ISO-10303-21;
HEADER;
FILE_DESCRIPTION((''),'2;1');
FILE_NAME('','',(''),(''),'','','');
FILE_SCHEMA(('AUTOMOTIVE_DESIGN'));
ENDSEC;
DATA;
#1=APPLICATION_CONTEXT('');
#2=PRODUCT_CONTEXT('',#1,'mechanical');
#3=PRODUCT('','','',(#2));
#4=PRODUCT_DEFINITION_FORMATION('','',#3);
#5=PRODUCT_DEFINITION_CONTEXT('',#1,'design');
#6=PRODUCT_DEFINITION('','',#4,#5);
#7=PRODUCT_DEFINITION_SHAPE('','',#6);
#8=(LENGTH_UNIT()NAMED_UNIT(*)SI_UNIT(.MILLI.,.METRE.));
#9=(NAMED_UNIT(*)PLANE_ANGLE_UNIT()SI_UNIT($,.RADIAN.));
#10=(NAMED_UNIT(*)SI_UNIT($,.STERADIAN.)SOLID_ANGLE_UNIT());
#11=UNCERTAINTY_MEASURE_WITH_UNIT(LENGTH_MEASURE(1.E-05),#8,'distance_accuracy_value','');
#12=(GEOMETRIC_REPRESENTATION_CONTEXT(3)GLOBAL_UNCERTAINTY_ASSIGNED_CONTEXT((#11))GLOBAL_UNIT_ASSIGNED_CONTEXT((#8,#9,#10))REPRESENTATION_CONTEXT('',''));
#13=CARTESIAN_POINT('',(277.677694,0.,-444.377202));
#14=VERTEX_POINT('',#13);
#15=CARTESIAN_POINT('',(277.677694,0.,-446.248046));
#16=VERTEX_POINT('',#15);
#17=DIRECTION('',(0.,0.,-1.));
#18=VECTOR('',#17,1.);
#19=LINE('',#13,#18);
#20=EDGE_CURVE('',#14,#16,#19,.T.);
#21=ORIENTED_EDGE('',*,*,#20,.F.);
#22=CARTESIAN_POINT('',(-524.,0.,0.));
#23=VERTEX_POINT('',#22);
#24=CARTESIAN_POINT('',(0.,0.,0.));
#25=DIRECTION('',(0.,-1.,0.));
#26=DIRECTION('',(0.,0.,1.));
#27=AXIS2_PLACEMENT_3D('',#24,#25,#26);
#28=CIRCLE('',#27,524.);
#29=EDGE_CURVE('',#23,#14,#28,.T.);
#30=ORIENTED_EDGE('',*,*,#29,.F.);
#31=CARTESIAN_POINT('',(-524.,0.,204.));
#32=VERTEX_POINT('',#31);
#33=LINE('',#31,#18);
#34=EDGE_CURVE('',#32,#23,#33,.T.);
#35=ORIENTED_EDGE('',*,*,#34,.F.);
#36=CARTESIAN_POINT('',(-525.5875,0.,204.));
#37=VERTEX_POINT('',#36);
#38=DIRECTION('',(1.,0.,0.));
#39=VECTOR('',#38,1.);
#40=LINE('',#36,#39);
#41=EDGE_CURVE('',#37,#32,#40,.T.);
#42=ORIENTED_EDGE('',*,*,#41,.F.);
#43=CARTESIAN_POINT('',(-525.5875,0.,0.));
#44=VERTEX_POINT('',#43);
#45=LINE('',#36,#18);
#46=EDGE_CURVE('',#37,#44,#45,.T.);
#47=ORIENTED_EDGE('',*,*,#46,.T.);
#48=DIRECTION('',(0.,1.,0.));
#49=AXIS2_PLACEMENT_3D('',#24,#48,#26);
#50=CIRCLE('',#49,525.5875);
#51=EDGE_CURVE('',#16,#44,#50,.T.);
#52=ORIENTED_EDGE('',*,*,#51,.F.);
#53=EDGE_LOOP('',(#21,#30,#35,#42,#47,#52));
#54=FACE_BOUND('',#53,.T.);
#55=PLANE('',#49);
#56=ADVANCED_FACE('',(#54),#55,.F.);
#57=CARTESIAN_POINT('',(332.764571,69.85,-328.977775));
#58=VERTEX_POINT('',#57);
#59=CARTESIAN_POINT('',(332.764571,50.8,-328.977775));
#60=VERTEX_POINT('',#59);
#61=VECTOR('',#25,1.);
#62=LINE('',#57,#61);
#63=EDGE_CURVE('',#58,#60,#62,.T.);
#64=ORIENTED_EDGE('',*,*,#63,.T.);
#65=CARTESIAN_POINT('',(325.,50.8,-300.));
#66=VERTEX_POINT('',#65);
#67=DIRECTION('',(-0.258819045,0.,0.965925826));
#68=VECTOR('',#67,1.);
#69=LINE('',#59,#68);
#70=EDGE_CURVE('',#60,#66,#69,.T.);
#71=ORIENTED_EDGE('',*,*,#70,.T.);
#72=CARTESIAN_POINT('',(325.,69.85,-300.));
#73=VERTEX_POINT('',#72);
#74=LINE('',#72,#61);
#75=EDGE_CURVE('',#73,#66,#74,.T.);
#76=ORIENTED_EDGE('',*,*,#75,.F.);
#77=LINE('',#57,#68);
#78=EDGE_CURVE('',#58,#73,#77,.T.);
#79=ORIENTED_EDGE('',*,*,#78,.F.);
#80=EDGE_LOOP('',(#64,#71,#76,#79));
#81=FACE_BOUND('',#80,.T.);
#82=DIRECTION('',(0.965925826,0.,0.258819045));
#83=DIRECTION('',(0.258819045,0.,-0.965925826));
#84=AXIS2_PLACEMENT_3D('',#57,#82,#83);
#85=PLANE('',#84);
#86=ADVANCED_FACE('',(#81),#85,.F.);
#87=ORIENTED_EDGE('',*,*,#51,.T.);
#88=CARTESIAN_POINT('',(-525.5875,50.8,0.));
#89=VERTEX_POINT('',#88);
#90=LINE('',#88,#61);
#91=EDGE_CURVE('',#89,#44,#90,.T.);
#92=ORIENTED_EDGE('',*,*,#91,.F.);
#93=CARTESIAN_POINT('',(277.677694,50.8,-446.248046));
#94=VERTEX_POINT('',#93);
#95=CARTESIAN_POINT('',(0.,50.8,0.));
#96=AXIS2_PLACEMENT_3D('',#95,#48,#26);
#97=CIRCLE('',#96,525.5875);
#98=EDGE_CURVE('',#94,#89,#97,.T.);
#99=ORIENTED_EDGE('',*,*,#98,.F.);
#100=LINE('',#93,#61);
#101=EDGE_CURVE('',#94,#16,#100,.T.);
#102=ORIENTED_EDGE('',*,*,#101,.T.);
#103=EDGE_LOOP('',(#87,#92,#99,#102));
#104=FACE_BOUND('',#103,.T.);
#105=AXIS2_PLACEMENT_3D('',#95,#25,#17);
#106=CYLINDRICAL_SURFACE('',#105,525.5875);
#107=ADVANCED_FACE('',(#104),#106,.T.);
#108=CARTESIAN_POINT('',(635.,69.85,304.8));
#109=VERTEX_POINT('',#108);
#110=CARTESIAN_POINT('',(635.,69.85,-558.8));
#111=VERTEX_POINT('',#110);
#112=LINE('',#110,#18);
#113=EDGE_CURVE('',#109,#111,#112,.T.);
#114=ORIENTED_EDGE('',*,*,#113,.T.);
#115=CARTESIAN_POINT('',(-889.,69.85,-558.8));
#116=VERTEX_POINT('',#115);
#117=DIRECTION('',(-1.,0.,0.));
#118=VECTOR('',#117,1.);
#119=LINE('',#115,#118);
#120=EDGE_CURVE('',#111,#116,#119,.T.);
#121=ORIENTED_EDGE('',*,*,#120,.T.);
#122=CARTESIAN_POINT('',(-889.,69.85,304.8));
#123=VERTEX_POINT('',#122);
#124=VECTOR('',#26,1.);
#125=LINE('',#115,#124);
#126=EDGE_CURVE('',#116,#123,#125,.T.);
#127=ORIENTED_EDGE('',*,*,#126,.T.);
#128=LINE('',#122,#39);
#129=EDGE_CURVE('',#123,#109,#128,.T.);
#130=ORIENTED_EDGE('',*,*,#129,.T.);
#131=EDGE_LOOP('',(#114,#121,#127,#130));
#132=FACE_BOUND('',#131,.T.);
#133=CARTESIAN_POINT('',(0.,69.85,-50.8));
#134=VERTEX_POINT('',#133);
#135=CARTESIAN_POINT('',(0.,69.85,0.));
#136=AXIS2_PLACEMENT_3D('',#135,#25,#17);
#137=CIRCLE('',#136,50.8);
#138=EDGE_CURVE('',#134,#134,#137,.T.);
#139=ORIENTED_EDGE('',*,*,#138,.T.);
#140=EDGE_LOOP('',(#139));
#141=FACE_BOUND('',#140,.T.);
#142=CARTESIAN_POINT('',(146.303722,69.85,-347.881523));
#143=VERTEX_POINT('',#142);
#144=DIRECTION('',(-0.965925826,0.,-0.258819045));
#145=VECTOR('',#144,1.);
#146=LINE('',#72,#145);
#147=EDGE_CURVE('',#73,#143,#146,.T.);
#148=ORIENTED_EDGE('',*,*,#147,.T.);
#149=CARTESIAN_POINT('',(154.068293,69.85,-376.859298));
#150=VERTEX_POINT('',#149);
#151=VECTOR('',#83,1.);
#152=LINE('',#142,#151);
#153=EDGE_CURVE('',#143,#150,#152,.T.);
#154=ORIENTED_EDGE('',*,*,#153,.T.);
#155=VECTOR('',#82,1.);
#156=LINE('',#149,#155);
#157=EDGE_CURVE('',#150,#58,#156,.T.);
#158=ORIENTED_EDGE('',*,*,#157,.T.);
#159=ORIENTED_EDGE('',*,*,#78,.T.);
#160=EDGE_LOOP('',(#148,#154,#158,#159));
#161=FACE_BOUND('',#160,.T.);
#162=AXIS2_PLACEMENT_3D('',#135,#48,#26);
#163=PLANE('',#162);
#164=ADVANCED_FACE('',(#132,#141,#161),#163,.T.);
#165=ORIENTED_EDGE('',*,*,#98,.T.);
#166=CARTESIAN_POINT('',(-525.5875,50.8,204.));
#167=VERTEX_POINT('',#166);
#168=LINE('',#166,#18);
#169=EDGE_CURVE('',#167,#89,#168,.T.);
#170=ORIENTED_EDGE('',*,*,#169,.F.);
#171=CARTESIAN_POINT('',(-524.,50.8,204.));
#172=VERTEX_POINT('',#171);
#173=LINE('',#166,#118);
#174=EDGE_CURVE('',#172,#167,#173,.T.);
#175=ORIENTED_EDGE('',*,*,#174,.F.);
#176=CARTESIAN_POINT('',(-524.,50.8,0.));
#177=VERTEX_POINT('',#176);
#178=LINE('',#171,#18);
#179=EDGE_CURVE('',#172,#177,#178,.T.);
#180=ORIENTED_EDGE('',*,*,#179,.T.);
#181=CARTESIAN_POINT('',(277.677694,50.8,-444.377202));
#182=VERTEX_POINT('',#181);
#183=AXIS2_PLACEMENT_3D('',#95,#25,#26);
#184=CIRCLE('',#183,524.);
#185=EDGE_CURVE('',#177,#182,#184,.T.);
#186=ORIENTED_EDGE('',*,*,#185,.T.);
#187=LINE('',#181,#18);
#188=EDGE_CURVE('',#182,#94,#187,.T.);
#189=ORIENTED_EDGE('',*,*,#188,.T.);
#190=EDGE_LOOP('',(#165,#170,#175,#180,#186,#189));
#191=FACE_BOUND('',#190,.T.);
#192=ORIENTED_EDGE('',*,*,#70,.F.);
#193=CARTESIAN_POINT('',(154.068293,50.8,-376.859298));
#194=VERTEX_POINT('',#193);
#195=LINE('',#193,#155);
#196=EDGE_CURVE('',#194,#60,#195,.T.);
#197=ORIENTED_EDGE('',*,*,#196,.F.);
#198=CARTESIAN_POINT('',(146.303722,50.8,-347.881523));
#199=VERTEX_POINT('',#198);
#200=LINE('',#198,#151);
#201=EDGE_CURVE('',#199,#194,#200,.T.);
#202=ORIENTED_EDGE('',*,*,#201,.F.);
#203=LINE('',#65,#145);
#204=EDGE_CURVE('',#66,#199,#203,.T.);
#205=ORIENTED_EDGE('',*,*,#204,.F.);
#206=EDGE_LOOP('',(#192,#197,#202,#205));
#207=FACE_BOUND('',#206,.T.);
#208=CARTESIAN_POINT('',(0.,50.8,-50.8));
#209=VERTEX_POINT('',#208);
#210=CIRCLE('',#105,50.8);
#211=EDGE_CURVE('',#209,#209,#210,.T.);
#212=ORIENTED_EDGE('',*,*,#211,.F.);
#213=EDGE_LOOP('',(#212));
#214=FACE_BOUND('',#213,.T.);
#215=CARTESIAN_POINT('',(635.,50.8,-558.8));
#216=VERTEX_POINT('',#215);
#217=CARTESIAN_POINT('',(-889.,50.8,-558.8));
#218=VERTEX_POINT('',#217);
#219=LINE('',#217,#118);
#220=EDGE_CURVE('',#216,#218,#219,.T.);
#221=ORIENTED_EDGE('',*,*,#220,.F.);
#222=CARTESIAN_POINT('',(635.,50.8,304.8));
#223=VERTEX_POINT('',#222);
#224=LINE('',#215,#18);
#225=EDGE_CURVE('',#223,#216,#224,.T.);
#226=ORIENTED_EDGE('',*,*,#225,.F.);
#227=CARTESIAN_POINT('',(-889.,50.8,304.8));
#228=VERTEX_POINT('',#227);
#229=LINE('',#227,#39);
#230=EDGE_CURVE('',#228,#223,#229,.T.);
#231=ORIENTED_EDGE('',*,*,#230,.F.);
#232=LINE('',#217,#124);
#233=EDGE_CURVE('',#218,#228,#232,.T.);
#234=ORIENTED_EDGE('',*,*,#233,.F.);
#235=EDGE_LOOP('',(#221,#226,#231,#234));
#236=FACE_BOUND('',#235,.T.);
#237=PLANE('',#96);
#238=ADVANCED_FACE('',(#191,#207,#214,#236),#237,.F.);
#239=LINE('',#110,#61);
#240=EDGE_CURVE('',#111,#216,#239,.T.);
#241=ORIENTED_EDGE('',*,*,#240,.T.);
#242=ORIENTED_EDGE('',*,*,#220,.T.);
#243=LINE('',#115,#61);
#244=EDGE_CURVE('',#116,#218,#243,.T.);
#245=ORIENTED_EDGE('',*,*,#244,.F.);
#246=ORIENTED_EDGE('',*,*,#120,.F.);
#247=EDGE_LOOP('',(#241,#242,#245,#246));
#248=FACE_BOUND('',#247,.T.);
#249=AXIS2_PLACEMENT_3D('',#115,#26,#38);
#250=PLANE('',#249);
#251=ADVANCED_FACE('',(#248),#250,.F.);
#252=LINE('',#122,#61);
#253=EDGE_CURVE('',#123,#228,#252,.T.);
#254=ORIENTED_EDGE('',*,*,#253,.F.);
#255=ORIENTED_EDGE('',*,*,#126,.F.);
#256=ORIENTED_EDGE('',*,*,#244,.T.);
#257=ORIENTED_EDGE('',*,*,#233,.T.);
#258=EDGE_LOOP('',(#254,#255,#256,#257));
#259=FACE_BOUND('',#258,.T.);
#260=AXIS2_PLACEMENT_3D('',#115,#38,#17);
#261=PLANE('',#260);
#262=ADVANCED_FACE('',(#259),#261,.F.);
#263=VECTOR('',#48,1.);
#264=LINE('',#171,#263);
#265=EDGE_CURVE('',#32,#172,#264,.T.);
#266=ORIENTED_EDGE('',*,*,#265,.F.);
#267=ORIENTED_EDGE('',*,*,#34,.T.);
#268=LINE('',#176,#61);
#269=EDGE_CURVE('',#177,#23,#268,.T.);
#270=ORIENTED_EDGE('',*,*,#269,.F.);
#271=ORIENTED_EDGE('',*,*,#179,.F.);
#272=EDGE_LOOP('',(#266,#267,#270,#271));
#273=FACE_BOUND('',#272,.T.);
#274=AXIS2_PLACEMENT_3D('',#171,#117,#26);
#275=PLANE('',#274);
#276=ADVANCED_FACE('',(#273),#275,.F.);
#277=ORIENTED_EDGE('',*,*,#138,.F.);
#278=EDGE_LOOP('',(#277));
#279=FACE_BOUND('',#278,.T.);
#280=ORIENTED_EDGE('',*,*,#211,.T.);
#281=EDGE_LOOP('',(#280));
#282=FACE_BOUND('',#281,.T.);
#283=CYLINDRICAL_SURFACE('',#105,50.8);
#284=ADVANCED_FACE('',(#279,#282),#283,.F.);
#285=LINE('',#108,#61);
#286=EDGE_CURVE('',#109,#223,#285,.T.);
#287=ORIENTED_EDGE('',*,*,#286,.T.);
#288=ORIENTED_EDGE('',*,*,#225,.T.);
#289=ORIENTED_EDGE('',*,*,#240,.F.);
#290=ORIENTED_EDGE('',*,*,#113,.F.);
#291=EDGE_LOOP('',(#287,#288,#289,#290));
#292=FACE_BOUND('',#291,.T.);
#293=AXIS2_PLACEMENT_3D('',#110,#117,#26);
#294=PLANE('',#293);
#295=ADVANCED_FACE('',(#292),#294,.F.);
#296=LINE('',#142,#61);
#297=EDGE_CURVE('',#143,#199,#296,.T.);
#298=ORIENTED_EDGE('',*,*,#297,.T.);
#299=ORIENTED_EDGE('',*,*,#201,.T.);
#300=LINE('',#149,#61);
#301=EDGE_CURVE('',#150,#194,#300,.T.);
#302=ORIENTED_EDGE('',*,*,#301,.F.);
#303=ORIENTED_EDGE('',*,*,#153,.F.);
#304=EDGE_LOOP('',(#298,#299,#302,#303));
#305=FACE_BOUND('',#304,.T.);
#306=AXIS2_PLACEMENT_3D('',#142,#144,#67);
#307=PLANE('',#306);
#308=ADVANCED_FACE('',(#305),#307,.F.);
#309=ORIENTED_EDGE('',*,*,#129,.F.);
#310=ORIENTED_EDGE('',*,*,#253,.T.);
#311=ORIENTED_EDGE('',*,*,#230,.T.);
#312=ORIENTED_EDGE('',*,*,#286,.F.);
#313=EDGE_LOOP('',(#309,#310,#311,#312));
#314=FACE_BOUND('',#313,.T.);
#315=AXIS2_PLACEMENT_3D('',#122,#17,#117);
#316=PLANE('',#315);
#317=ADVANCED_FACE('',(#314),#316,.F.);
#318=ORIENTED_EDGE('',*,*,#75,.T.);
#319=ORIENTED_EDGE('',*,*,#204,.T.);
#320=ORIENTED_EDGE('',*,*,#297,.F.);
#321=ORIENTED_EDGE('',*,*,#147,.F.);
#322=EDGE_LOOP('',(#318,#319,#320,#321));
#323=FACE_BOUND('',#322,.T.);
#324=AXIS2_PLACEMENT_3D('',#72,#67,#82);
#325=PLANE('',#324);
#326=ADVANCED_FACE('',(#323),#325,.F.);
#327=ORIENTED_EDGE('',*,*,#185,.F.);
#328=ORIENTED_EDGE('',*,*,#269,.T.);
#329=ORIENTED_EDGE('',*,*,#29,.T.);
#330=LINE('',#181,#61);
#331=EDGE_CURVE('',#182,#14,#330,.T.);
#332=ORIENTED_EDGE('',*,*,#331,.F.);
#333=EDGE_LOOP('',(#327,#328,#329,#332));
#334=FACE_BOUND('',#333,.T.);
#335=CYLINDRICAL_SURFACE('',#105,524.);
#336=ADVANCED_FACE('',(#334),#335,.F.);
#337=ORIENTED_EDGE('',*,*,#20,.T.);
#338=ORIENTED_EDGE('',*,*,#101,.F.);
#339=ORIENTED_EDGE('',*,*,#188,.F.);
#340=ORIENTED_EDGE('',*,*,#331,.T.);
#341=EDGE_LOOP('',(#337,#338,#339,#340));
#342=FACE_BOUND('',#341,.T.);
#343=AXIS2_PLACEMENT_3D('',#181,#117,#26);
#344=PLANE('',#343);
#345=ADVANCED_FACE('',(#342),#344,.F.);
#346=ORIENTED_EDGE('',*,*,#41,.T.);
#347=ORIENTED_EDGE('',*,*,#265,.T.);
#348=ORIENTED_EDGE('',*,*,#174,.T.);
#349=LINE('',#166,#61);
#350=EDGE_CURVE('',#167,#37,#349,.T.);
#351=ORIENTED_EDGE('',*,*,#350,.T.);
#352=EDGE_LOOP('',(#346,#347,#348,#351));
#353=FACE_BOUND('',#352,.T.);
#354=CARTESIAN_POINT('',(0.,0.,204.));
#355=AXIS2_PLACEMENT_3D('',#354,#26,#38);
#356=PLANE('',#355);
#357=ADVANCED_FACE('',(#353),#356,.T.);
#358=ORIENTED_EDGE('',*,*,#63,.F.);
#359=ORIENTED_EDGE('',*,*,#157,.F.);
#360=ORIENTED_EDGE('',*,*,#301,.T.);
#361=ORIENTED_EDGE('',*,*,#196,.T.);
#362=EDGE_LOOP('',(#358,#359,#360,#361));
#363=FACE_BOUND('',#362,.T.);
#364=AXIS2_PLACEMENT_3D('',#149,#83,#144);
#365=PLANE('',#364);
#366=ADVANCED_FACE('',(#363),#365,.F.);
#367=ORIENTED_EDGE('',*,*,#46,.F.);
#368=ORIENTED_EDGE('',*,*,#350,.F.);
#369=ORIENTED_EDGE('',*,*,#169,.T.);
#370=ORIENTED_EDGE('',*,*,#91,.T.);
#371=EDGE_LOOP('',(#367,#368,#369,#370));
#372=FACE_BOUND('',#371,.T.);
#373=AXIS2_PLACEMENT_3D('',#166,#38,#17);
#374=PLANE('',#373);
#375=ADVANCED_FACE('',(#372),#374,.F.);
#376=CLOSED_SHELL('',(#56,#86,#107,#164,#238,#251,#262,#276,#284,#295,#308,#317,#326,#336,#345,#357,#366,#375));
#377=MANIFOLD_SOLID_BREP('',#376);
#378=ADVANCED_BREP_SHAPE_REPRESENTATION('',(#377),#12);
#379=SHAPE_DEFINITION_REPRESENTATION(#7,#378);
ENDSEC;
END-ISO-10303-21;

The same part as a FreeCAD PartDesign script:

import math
import FreeCAD as App
import Part
import Sketcher
from FreeCAD import Vector
Q = App.Units.Quantity

doc = App.newDocument("Part")
params = doc.addObject("Spreadsheet::Sheet", "Params")
for row, (alias, value) in enumerate([
    ("sketch1_width", "0.0625 in"),
    ("pad1_length", "2 in"),
    ("sketch2_width", "60 in"),
    ("sketch2_height", "34 in"),
    ("pad2_length", "0.75 in"),
    ("sketch3_diameter", "4 in"),
    ("hole_diameter", "4 in"),
    ("sketch4_height", "2 in"),
    ("sketch4_width", "0.0625 in"),
    ("pad3_length", "204 mm"),
], start=1):
    params.set(f"A{row}", alias)
    params.set(f"B{row}", "=" + value)
    params.setAlias(f"B{row}", alias)

body = doc.addObject("PartDesign::Body", "Body")

# Sketch on XZ plane
sketch1 = body.newObject("Sketcher::SketchObject", "Sketch")
sketch1.AttachmentSupport = (doc.getObject("XZ_Plane"), [""])
sketch1.MapMode = "FlatFace"
sketch1.addGeometry([
    Part.LineSegment(Vector(-525.6, 0, 0), Vector(-524, 0, 0)),
    Part.ArcOfCircle(Part.Circle(Vector(0, 0, 0), Vector(0, 0, 1), 524), math.radians(180), math.radians(302)),
    Part.LineSegment(Vector(277.7, -444.4, 0), Vector(277.7, -446.2, 0)),
    Part.ArcOfCircle(Part.Circle(Vector(0, 0, 0), Vector(0, 0, 1), 525.6), math.radians(180), math.radians(302)),
], False)
sketch1.addConstraint([
    Sketcher.Constraint("Coincident", 0, 2, 1, 1),
    Sketcher.Constraint("Coincident", 1, 2, 2, 1),
    Sketcher.Constraint("Coincident", 2, 2, 3, 2),
    Sketcher.Constraint("Coincident", 3, 1, 0, 1),
    Sketcher.Constraint("Horizontal", 0),
    Sketcher.Constraint("Vertical", 2),
    Sketcher.Constraint("Coincident", 1, 3, -1, 1),
    Sketcher.Constraint("Coincident", 3, 3, -1, 1),
    Sketcher.Constraint("PointOnObject", 0, 2, -1),
    Sketcher.Constraint("DistanceX", 0, 1, 0, 2, Q("0.0625 in")),
    Sketcher.Constraint("Radius", 1, 524.0),
    Sketcher.Constraint("DistanceX", -1, 1, 2, 2, 277.677694),
])
sketch1.setExpression("Constraints[9]", "Params.sketch1_width")
pad1 = body.newObject("PartDesign::Pad", "Pad")
pad1.Profile = sketch1
pad1.setExpression("Length", "Params.pad1_length")
pad1.Reversed = True

# Sketch on XZ plane
sketch2 = body.newObject("Sketcher::SketchObject", "Sketch001")
sketch2.AttachmentSupport = (doc.getObject("XZ_Plane"), [""])
sketch2.MapMode = "FlatFace"
sketch2.AttachmentOffset = App.Placement(Vector(0, 0, -2 * 25.4), App.Rotation())
sketch2.addGeometry([
    Part.LineSegment(Vector(-889, -559, 0), Vector(-889, 305, 0)),
    Part.LineSegment(Vector(-889, 305, 0), Vector(635, 305, 0)),
    Part.LineSegment(Vector(635, 305, 0), Vector(635, -559, 0)),
    Part.LineSegment(Vector(635, -559, 0), Vector(-889, -559, 0)),
], False)
sketch2.addConstraint([
    Sketcher.Constraint("Coincident", 0, 2, 1, 1),
    Sketcher.Constraint("Coincident", 1, 2, 2, 1),
    Sketcher.Constraint("Coincident", 2, 2, 3, 1),
    Sketcher.Constraint("Coincident", 3, 2, 0, 1),
    Sketcher.Constraint("Vertical", 0),
    Sketcher.Constraint("Horizontal", 1),
    Sketcher.Constraint("Vertical", 2),
    Sketcher.Constraint("Horizontal", 3),
    Sketcher.Constraint("DistanceX", 1, 1, 1, 2, Q("60 in")),
    Sketcher.Constraint("DistanceY", 0, 1, 0, 2, Q("34 in")),
    Sketcher.Constraint("DistanceX", 0, 2, -1, 1, Q("35 in")),
    Sketcher.Constraint("DistanceY", -1, 1, 0, 2, Q("12 in")),
])
sketch2.setExpression("Constraints[8]", "Params.sketch2_width")
sketch2.setExpression("Constraints[9]", "Params.sketch2_height")
pad2 = body.newObject("PartDesign::Pad", "Pad001")
pad2.Profile = sketch2
pad2.setExpression("Length", "Params.pad2_length")
pad2.Reversed = True

# Sketch on XZ plane
sketch3 = body.newObject("Sketcher::SketchObject", "Sketch002")
sketch3.AttachmentSupport = (doc.getObject("XZ_Plane"), [""])
sketch3.MapMode = "FlatFace"
sketch3.AttachmentOffset = App.Placement(Vector(0, 0, -2 * 25.4), App.Rotation())
sketch3.addGeometry(Part.Circle(Vector(0, 0, 0), Vector(0, 0, 1), 51), False)
sketch3.addConstraint([
    Sketcher.Constraint("Coincident", 0, 3, -1, 1),
    Sketcher.Constraint("Diameter", 0, Q("4 in")),
])
sketch3.setExpression("Constraints[1]", "Params.sketch3_diameter")
doc.recompute()
hole = body.newObject("PartDesign::Hole", "Hole")
hole.Profile = sketch3
hole.ThreadType = "None"
hole.setExpression("Diameter", "Params.hole_diameter")
hole.DepthType = "ThroughAll"

# Sketch on XY plane
sketch4 = body.newObject("Sketcher::SketchObject", "Sketch003")
sketch4.AttachmentSupport = (doc.getObject("XY_Plane"), [""])
sketch4.MapMode = "FlatFace"
sketch4.addGeometry([
    Part.LineSegment(Vector(-525.6, 50.8, 0), Vector(-525.6, 0, 0)),
    Part.LineSegment(Vector(-525.6, 0, 0), Vector(-524, 0, 0)),
    Part.LineSegment(Vector(-524, 0, 0), Vector(-524, 50.8, 0)),
    Part.LineSegment(Vector(-524, 50.8, 0), Vector(-525.6, 50.8, 0)),
], False)
sketch4.addConstraint([
    Sketcher.Constraint("Coincident", 0, 2, 1, 1),
    Sketcher.Constraint("Coincident", 1, 2, 2, 1),
    Sketcher.Constraint("Coincident", 2, 2, 3, 1),
    Sketcher.Constraint("Coincident", 3, 2, 0, 1),
    Sketcher.Constraint("Vertical", 0),
    Sketcher.Constraint("Horizontal", 1),
    Sketcher.Constraint("Vertical", 2),
    Sketcher.Constraint("Horizontal", 3),
    Sketcher.Constraint("PointOnObject", 0, 2, -1),
    Sketcher.Constraint("DistanceY", 0, 2, 0, 1, Q("2 in")),
    Sketcher.Constraint("DistanceX", 1, 1, 1, 2, Q("0.0625 in")),
    Sketcher.Constraint("DistanceX", 0, 2, -1, 1, 525.5875),
])
sketch4.setExpression("Constraints[9]", "Params.sketch4_height")
sketch4.setExpression("Constraints[10]", "Params.sketch4_width")
pad3 = body.newObject("PartDesign::Pad", "Pad002")
pad3.Profile = sketch4
pad3.setExpression("Length", "Params.pad3_length")

# Sketch on XZ plane
sketch5 = body.newObject("Sketcher::SketchObject", "Sketch004")
sketch5.AttachmentSupport = (doc.getObject("XZ_Plane"), [""])
sketch5.MapMode = "FlatFace"
sketch5.AttachmentOffset = App.Placement(Vector(0, 0, -2 * 25.4), App.Rotation())
sketch5.addGeometry([
    Part.LineSegment(Vector(154, -377, 0), Vector(333, -329, 0)),
    Part.LineSegment(Vector(333, -329, 0), Vector(325, -300, 0)),
    Part.LineSegment(Vector(325, -300, 0), Vector(146, -348, 0)),
    Part.LineSegment(Vector(146, -348, 0), Vector(154, -377, 0)),
], False)
sketch5.addConstraint([
    Sketcher.Constraint("Coincident", 0, 2, 1, 1),
    Sketcher.Constraint("Coincident", 1, 2, 2, 1),
    Sketcher.Constraint("Coincident", 2, 2, 3, 1),
    Sketcher.Constraint("Coincident", 3, 2, 0, 1),
    Sketcher.Constraint("Perpendicular", 0, 1),
    Sketcher.Constraint("Perpendicular", 1, 2),
    Sketcher.Constraint("Perpendicular", 2, 3),
    Sketcher.Constraint("Angle", 0, Q("15 deg")),
    Sketcher.Constraint("Distance", 0, 185.0),
    Sketcher.Constraint("Distance", 1, 30.0),
    Sketcher.Constraint("DistanceX", -1, 1, 1, 2, 325.0),
    Sketcher.Constraint("DistanceY", 1, 2, -1, 1, 300.0),
])
pocket1 = body.newObject("PartDesign::Pocket", "Pocket")
pocket1.Profile = sketch5
pocket1.Type = "ThroughAll"

doc.recompute()
